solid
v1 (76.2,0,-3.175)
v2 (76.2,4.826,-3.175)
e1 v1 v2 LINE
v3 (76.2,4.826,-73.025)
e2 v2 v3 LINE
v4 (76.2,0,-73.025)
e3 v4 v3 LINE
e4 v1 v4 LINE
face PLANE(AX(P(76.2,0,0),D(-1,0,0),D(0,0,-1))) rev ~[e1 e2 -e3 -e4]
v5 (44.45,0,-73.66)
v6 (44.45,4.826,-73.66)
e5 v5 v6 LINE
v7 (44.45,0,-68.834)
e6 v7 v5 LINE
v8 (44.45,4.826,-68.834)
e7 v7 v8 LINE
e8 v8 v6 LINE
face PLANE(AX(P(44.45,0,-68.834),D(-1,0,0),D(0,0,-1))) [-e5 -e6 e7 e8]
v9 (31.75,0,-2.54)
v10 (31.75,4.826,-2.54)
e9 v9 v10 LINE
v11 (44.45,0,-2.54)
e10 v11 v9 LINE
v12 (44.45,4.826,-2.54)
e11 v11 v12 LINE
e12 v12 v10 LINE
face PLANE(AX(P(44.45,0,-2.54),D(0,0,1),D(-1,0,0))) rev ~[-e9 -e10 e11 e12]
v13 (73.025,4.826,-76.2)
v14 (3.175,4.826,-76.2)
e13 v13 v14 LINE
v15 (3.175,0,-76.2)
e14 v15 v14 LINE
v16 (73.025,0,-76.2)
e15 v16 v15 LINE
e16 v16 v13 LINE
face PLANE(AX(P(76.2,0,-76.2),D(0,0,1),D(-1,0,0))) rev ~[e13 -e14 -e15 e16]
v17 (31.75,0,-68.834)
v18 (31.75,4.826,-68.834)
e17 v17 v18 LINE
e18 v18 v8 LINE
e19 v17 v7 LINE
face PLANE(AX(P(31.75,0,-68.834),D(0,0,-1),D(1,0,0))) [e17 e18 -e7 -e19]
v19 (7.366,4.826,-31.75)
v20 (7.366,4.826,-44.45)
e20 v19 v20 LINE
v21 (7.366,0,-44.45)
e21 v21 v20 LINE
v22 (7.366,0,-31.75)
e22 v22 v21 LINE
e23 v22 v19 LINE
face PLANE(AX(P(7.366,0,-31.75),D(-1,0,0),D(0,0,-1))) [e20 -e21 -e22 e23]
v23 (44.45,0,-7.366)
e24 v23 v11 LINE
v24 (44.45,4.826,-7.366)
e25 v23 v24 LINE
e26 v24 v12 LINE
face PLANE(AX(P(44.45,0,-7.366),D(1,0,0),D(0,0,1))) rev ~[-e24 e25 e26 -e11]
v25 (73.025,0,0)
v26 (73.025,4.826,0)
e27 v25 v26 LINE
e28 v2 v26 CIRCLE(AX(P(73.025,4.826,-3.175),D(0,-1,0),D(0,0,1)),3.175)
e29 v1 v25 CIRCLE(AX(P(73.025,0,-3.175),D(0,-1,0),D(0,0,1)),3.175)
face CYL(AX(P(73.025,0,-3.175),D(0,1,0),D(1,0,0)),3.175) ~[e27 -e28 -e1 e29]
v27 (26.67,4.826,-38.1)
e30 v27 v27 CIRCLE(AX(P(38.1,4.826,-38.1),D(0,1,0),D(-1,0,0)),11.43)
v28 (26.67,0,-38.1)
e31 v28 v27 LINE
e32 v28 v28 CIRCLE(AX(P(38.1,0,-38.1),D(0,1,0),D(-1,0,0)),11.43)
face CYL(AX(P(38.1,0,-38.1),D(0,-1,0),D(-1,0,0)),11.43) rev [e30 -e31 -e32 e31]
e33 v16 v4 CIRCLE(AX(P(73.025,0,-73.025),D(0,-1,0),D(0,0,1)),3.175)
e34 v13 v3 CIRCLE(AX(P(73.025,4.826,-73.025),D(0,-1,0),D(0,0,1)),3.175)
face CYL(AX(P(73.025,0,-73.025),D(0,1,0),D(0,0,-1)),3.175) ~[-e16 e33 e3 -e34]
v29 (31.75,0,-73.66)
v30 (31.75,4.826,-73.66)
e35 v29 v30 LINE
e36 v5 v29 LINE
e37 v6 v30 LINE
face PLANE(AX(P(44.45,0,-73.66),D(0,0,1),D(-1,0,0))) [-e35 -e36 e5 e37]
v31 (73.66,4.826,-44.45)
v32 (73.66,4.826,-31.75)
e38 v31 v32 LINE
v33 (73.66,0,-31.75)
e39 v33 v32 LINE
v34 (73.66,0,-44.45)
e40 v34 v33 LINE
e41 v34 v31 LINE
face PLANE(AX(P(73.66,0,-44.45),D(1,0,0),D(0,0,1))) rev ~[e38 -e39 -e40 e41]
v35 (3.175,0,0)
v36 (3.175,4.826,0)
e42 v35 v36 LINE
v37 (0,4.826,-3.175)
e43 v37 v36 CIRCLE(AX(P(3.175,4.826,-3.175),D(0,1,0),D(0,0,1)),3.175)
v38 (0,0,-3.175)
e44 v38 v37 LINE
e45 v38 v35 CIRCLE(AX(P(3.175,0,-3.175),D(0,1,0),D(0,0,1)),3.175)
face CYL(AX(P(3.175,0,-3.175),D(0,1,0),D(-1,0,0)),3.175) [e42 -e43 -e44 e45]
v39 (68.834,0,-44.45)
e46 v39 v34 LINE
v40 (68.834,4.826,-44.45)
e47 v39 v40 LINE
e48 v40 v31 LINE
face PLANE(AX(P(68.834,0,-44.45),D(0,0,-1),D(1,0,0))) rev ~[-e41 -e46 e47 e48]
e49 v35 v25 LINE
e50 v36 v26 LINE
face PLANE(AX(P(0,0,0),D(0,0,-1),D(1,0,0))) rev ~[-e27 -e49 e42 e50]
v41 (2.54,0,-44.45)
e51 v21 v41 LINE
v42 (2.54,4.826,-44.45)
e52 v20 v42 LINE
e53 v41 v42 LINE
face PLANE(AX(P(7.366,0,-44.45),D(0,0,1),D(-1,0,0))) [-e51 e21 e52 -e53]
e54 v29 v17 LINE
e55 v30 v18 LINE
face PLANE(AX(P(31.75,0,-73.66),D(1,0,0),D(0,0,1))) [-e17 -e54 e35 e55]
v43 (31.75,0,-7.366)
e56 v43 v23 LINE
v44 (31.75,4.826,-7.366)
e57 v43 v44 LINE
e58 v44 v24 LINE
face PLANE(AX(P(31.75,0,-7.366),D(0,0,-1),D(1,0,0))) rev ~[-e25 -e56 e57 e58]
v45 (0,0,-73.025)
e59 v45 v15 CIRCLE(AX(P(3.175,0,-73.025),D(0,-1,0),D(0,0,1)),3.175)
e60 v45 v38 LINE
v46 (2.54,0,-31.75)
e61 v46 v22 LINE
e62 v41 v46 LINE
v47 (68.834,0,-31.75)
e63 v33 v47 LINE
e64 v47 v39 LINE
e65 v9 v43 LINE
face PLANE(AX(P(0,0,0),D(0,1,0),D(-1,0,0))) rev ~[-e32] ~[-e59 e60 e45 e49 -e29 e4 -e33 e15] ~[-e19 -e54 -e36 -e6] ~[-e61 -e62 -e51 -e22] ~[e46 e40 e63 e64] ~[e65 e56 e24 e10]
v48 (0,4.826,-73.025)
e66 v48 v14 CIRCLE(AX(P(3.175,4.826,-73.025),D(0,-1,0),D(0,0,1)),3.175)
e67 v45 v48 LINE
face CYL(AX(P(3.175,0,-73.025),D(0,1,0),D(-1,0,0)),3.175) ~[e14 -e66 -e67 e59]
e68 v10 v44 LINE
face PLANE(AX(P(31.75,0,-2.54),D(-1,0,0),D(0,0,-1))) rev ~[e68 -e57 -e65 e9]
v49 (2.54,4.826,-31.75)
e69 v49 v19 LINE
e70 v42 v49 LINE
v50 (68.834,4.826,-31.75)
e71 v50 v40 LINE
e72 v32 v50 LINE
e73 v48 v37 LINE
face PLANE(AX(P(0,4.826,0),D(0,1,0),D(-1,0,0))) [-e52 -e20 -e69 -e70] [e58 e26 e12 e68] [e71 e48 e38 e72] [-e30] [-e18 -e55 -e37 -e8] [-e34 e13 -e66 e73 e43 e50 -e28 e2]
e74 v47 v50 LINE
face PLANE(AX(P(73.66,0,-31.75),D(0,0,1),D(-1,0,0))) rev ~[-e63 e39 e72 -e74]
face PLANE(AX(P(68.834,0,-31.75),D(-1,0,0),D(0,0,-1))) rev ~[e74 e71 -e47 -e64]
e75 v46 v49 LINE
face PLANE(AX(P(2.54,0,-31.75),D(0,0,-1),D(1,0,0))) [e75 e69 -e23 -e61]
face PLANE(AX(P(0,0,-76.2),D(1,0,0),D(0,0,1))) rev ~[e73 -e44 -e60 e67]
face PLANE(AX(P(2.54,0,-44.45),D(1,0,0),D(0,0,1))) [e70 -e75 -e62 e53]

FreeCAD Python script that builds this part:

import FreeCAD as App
import Part
import Sketcher

V = App.Vector
Q = App.Units.Quantity


def edges_at(feature, points):
    """Names of the edges that pass closest to the given points."""
    edges = feature.Shape.Edges
    near = lambda p: min(range(len(edges)), key=lambda i: edges[i].distToShape(Part.Vertex(*p))[0])
    return sorted({f"Edge{near(p) + 1}" for p in points})


def add_polygon(sketch, points):
    """Adds a closed chain of lines whose ends are joined by coincident constraints."""
    first, n = sketch.GeometryCount, len(points)
    for a, b in zip(points, points[1:] + points[:1]):
        sketch.addGeometry(Part.LineSegment(App.Vector(*a, 0), App.Vector(*b, 0)), False)
    for i in range(n):
        sketch.addConstraint(Sketcher.Constraint("Coincident", first + i, 2, first + (i + 1) % n, 1))

doc = App.newDocument("Part")
body = doc.addObject("PartDesign::Body", "Body")

sketch1 = doc.addObject("Sketcher::SketchObject", "Sketch")
body.addObject(sketch1)
sketch1.AttachmentSupport = (doc.XZ_Plane, [""])
sketch1.MapMode = "FlatFace"
add_polygon(sketch1, [(0, -76.2), (0, 0), (76.2, 0), (76.2, -76.2)])
add_polygon(sketch1, [(31.8, -73.7), (44.5, -73.7), (44.5, -68.8), (31.8, -68.8)])
add_polygon(sketch1, [(73.7, -31.8), (68.8, -31.8), (68.8, -44.5), (73.7, -44.5)])
sketch1.addGeometry(Part.Circle(V(38.1, -38.1, 0), V(0, 0, 1), 11.4), False)
add_polygon(sketch1, [(2.5, -44.5), (7.4, -44.5), (7.4, -31.8), (2.5, -31.8)])
add_polygon(sketch1, [(44.5, -7.4), (44.5, -2.5), (31.8, -2.5), (31.8, -7.4)])
sketch1.addConstraint(Sketcher.Constraint("Vertical", 0))
sketch1.addConstraint(Sketcher.Constraint("Horizontal", 1))
sketch1.addConstraint(Sketcher.Constraint("Vertical", 2))
sketch1.addConstraint(Sketcher.Constraint("Horizontal", 3))
sketch1.addConstraint(Sketcher.Constraint("Horizontal", 4))
sketch1.addConstraint(Sketcher.Constraint("Vertical", 5))
sketch1.addConstraint(Sketcher.Constraint("Horizontal", 6))
sketch1.addConstraint(Sketcher.Constraint("Vertical", 7))
sketch1.addConstraint(Sketcher.Constraint("Horizontal", 8))
sketch1.addConstraint(Sketcher.Constraint("Vertical", 9))
sketch1.addConstraint(Sketcher.Constraint("Horizontal", 10))
sketch1.addConstraint(Sketcher.Constraint("Vertical", 11))
sketch1.addConstraint(Sketcher.Constraint("Horizontal", 13))
sketch1.addConstraint(Sketcher.Constraint("Vertical", 14))
sketch1.addConstraint(Sketcher.Constraint("Horizontal", 15))
sketch1.addConstraint(Sketcher.Constraint("Vertical", 16))
sketch1.addConstraint(Sketcher.Constraint("Vertical", 17))
sketch1.addConstraint(Sketcher.Constraint("Horizontal", 18))
sketch1.addConstraint(Sketcher.Constraint("Vertical", 19))
sketch1.addConstraint(Sketcher.Constraint("Horizontal", 20))
sketch1.addConstraint(Sketcher.Constraint("Coincident", 0, 2, -1, 1))
sketch1.addConstraint(Sketcher.Constraint("Horizontal", 10, 2, 13, 2))
sketch1.addConstraint(Sketcher.Constraint("Horizontal", 11, 2, 14, 2))
sketch1.addConstraint(Sketcher.Constraint("Vertical", 5, 2, 17, 2))
sketch1.addConstraint(Sketcher.Constraint("Vertical", 7, 2, 18, 2))
sketch1.addConstraint(Sketcher.Constraint("Equal", 10, 13))
sketch1.addConstraint(Sketcher.Constraint("Equal", 3, 0))
sketch1.addConstraint(Sketcher.Constraint("Equal", 15, 5))
sketch1.addConstraint(Sketcher.Constraint("Equal", 20, 9))
sketch1.addConstraint(Sketcher.Constraint("Equal", 7, 17))
sketch1.addConstraint(Sketcher.Constraint("Diameter", 12, Q("0.9 in")))
sketch1.addConstraint(Sketcher.Constraint("DistanceX", 1, 1, 1, 2, Q("3 in")))
sketch1.addConstraint(Sketcher.Constraint("DistanceX", 4, 1, 4, 2, Q("0.5 in")))
sketch1.addConstraint(Sketcher.Constraint("DistanceX", 8, 2, 8, 1, Q("0.19 in")))
sketch1.addConstraint(Sketcher.Constraint("DistanceX", -1, 1, 15, 2, Q("0.1 in")))
sketch1.addConstraint(Sketcher.Constraint("DistanceY", 17, 2, -1, 1, Q("0.1 in")))
sketch1.addConstraint(Sketcher.Constraint("DistanceY", 2, 2, 4, 2, Q("0.1 in")))
sketch1.addConstraint(Sketcher.Constraint("DistanceX", 10, 2, 2, 2, Q("0.1 in")))
sketch1.addConstraint(Sketcher.Constraint("DistanceX", -1, 1, 6, 2, Q("1.25 in")))
sketch1.addConstraint(Sketcher.Constraint("DistanceY", 8, 2, -1, 1, Q("1.25 in")))
sketch1.addConstraint(Sketcher.Constraint("DistanceX", -1, 1, 12, 3, Q("1.5 in")))
sketch1.addConstraint(Sketcher.Constraint("DistanceY", 12, 3, -1, 1, Q("1.5 in")))
pad1 = doc.addObject("PartDesign::Pad", "Pad")
body.addObject(pad1)
pad1.Profile = sketch1
pad1.Length = Q("0.19 in")
pad1.Reversed = True
doc.recompute()

fillet = doc.addObject("PartDesign::Fillet", "Fillet")
body.addObject(fillet)
fillet.Base = (pad1, edges_at(pad1, [
    (76.2, 2.413, 0),
    (0, 2.413, 0),
    (76.2, 2.413, -76.2),
    (0, 2.413, -76.2),
]))
fillet.Radius = Q("0.125 in")

doc.recompute()
